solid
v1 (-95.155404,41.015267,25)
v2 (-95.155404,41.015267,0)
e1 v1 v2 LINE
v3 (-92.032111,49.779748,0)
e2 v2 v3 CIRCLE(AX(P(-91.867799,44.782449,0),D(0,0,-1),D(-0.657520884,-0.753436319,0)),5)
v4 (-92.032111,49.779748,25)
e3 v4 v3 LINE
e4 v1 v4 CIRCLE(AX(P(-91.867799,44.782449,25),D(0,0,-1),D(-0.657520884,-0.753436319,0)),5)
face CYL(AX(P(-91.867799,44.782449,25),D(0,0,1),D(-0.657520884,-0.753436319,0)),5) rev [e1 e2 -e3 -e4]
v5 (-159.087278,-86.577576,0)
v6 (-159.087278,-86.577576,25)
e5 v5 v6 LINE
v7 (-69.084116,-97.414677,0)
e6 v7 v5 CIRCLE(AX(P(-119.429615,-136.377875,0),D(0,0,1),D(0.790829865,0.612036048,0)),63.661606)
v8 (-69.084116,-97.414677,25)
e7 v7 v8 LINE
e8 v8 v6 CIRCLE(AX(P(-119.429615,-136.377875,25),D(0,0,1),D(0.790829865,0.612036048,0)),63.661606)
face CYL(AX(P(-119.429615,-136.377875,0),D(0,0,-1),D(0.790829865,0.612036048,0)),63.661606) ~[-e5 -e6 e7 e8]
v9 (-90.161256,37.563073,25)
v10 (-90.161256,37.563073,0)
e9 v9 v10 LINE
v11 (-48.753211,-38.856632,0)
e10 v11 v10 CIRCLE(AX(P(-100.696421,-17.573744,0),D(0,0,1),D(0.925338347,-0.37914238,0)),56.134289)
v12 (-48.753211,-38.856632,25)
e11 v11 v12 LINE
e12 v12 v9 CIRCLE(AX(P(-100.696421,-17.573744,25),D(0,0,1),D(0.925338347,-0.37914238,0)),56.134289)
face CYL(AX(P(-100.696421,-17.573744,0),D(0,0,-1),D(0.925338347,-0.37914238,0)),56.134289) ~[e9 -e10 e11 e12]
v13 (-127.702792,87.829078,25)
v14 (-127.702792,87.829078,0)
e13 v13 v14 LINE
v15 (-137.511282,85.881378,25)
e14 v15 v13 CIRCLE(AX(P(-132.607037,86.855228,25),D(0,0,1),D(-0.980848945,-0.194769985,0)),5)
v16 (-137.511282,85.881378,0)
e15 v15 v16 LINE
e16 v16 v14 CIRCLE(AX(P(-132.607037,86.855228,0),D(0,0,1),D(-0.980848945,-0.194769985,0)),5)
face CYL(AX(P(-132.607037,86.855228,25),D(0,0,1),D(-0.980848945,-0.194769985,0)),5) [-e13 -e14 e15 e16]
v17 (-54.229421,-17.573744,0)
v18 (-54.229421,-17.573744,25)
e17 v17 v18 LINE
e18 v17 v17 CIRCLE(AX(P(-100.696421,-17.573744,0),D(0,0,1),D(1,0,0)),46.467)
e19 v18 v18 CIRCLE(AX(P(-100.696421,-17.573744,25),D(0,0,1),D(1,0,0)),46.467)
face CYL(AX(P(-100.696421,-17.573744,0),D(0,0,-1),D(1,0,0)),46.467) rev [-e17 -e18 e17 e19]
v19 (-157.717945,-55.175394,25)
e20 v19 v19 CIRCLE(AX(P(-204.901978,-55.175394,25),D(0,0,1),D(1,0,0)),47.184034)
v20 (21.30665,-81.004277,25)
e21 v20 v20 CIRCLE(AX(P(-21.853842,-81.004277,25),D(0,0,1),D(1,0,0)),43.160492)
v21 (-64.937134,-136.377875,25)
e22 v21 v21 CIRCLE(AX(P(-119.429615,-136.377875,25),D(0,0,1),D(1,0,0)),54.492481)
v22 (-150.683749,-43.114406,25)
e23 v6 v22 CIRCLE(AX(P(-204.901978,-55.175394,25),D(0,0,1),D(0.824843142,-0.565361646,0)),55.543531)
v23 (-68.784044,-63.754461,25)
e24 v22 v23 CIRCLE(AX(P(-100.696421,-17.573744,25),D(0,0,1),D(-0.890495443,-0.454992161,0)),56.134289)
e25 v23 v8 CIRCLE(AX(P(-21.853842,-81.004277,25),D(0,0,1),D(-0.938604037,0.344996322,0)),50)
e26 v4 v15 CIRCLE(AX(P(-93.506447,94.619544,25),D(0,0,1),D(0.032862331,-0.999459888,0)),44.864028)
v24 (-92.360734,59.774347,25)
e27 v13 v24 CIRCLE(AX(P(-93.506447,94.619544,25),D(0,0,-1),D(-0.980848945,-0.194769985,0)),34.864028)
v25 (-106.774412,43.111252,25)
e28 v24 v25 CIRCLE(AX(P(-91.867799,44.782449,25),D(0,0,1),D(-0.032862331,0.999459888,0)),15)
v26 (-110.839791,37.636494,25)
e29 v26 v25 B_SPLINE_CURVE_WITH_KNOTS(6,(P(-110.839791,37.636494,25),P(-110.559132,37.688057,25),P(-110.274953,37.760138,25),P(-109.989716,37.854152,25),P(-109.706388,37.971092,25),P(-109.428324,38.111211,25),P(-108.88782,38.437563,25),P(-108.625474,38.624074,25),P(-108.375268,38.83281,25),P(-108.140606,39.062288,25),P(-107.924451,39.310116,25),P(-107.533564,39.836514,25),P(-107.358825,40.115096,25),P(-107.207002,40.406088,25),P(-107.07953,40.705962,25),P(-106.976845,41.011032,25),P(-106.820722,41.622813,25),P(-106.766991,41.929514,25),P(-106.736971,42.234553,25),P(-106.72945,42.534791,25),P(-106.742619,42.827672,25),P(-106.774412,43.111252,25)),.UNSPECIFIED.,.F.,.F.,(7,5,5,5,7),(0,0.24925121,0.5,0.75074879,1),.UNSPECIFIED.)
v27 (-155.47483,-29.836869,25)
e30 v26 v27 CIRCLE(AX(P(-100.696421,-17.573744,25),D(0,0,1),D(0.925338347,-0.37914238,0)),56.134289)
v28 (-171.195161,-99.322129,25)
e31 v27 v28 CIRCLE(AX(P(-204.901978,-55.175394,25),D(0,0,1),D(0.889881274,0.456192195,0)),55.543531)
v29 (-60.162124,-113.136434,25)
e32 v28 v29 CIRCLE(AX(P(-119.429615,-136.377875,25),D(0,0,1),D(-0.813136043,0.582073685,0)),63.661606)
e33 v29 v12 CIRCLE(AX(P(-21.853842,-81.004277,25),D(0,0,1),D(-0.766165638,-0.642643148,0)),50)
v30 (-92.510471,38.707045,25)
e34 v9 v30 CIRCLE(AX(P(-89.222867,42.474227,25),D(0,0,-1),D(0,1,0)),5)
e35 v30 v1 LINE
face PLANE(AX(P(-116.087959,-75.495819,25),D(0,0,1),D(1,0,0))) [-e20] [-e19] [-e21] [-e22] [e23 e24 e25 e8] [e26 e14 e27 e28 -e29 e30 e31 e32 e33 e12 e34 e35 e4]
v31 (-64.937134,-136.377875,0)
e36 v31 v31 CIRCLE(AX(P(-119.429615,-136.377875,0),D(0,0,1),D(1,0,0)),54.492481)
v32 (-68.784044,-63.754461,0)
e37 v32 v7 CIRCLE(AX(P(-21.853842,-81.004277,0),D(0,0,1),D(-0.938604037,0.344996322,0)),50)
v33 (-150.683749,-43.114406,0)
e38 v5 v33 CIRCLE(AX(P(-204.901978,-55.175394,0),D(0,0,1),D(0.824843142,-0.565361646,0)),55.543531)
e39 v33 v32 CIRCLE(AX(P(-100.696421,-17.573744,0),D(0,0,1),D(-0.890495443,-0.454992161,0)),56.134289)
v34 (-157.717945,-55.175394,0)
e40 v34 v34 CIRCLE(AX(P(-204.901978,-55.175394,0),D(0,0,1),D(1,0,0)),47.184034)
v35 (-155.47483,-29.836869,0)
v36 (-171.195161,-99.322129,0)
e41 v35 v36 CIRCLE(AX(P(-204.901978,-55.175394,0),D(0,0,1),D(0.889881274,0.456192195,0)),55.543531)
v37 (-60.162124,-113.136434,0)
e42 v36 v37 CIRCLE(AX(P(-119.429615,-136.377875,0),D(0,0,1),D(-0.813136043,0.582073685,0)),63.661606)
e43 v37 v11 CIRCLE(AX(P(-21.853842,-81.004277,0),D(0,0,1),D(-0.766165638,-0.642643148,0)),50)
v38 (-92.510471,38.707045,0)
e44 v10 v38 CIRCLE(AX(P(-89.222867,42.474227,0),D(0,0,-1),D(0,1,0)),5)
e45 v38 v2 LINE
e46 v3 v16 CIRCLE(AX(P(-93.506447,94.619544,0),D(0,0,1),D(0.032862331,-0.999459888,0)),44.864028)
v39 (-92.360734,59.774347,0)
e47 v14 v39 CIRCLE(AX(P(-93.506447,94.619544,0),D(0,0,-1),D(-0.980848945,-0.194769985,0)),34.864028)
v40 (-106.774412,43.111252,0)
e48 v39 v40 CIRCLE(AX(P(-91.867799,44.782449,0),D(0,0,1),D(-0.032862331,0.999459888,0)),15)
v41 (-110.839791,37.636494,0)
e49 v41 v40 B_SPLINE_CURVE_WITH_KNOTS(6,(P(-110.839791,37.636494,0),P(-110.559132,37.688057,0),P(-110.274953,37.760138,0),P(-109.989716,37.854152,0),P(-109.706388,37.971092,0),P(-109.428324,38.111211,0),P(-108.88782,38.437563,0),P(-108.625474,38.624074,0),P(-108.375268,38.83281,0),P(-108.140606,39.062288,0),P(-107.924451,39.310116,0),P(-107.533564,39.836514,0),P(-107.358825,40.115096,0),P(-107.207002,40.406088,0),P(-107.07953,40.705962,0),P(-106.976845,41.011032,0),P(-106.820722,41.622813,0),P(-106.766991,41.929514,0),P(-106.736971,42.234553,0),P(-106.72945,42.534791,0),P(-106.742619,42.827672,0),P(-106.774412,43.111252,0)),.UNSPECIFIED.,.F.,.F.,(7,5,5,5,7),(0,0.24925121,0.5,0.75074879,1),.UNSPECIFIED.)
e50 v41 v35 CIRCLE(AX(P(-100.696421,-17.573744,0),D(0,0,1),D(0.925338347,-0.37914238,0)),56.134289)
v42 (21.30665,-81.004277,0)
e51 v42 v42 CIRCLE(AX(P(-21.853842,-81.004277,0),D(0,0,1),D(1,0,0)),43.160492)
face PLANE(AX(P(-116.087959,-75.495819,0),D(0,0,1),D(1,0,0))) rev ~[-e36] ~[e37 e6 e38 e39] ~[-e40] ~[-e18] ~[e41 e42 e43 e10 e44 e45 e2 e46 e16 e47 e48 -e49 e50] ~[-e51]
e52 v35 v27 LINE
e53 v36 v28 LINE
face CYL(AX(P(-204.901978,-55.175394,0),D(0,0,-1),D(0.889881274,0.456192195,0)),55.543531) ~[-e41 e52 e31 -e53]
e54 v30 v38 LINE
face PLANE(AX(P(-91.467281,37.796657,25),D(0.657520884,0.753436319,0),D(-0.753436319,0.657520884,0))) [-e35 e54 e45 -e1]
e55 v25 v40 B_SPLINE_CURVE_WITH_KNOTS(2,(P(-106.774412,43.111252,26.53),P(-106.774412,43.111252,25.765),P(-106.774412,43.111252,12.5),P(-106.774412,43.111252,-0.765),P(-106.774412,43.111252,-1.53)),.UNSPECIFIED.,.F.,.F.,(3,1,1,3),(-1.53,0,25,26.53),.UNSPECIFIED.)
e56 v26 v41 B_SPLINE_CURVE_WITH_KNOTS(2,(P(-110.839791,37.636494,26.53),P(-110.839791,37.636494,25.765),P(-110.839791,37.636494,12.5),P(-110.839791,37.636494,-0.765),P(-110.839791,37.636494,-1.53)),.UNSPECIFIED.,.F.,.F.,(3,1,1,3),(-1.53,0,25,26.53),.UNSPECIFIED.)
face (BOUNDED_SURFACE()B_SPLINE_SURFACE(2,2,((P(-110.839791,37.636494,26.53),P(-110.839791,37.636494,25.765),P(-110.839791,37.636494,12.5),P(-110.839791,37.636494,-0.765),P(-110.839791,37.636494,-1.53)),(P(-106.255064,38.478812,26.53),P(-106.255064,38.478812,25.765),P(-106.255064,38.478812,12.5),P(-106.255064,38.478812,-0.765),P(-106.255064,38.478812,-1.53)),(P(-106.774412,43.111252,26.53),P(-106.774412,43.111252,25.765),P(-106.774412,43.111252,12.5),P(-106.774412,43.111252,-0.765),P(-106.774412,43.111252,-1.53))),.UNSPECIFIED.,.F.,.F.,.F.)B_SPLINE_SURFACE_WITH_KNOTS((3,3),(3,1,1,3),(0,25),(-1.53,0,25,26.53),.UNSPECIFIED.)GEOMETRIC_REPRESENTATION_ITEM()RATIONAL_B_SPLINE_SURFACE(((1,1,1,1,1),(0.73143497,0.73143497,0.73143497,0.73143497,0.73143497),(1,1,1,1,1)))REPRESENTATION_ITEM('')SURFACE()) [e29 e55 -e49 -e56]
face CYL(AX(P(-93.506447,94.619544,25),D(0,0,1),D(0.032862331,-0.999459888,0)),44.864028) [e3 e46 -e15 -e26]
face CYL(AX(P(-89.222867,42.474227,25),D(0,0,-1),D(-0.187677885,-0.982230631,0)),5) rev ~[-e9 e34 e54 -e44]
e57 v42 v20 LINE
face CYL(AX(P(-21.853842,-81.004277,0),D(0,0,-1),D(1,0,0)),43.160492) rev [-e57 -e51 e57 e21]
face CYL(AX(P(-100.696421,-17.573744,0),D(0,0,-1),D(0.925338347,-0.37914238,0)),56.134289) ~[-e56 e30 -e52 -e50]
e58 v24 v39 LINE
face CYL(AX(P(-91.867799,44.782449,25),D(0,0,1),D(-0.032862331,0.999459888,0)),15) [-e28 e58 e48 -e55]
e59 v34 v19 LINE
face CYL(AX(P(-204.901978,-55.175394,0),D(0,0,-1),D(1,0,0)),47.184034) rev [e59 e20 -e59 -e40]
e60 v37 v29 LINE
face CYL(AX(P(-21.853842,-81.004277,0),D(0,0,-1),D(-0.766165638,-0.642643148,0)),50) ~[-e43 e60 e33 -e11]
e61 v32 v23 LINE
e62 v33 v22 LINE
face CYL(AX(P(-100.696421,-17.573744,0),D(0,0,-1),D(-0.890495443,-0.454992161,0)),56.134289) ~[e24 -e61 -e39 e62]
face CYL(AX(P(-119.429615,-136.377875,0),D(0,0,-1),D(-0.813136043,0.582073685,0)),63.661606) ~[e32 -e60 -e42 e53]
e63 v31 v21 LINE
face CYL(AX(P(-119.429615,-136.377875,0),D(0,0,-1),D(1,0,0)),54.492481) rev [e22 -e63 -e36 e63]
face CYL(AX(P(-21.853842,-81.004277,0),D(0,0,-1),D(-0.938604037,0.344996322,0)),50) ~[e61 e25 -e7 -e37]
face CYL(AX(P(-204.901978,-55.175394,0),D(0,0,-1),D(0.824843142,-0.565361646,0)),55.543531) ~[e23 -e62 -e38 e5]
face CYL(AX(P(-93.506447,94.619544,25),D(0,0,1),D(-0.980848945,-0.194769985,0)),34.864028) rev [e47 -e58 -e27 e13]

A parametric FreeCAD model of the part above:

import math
import FreeCAD as App
import Part
import Sketcher


def edges_at(feature, points):
    """Names of the edges that pass closest to the given points."""
    edges = feature.Shape.Edges
    near = lambda p: min(range(len(edges)), key=lambda i: edges[i].distToShape(Part.Vertex(*p))[0])
    return sorted({f"Edge{near(p) + 1}" for p in points})

doc = App.newDocument("Part")
body = doc.addObject("PartDesign::Body", "Body")

sketch1 = body.newObject("Sketcher::SketchObject", "Sketch")
sketch1.AttachmentSupport = (doc.getObject("XY_Plane"), [""])
sketch1.MapMode = "FlatFace"
sketch1.addGeometry([
    Part.ArcOfCircle(Part.Circle(App.Vector(-119.429615, -136.377875, 0), App.Vector(0, 0, 1), 63.661606), math.radians(144.403473), math.radians(381.412372)),
    Part.ArcOfCircle(Part.Circle(App.Vector(-21.853842, -81.004277, 0), App.Vector(0, 0, 1), 50), math.radians(-140.010804), math.radians(122.546736)),
    Part.ArcOfCircle(Part.Circle(App.Vector(-100.696421, -17.573744, 0), App.Vector(0, 0, 1), 56.134289), math.radians(-22.28057), math.radians(192.618626)),
    Part.ArcOfCircle(Part.Circle(App.Vector(-204.901978, -55.175394, 0), App.Vector(0, 0, 1), 55.543531), math.radians(27.141668), math.radians(307.362378)),
    Part.Circle(App.Vector(-119.429615, -136.377875, 0), App.Vector(0, 0, 1), 54.492481),
    Part.Circle(App.Vector(-21.853842, -81.004277, 0), App.Vector(0, 0, 1), 43.160492),
    Part.Circle(App.Vector(-204.901978, -55.175394, 0), App.Vector(0, 0, 1), 47.184034),
    Part.ArcOfCircle(Part.Circle(App.Vector(-119.429615, -136.377875, 0), App.Vector(0, 0, 1), 63.661606), math.radians(37.736869), math.radians(128.531496)),
    Part.ArcOfCircle(Part.Circle(App.Vector(-204.901978, -55.175394, 0), App.Vector(0, 0, 1), 55.543531), math.radians(-34.427408), math.radians(12.541388)),
    Part.ArcOfCircle(Part.Circle(App.Vector(-100.696421, -17.573744, 0), App.Vector(0, 0, 1), 56.134289), math.radians(-152.93557), math.radians(-55.354266)),
    Part.ArcOfCircle(Part.Circle(App.Vector(-21.853842, -81.004277, 0), App.Vector(0, 0, 1), 50), math.radians(159.818429), math.radians(199.160045)),
    Part.Circle(App.Vector(-100.696421, -17.573744, 0), App.Vector(0, 0, 1), 46.467),
], False)
sketch1.addConstraint([
    Sketcher.Constraint("Coincident", 0, 2, 1, 1),
    Sketcher.Constraint("Coincident", 1, 2, 2, 1),
    Sketcher.Constraint("Coincident", 2, 2, 3, 1),
    Sketcher.Constraint("Coincident", 3, 2, 0, 1),
    Sketcher.Constraint("Coincident", 7, 2, 8, 1),
    Sketcher.Constraint("Coincident", 8, 2, 9, 1),
    Sketcher.Constraint("Coincident", 9, 2, 10, 1),
    Sketcher.Constraint("Coincident", 10, 2, 7, 1),
    Sketcher.Constraint("Coincident", 4, 3, 0, 3),
    Sketcher.Constraint("Coincident", 5, 3, 1, 3),
    Sketcher.Constraint("Coincident", 6, 3, 3, 3),
    Sketcher.Constraint("Coincident", 7, 3, 0, 3),
    Sketcher.Constraint("Coincident", 8, 3, 3, 3),
    Sketcher.Constraint("Coincident", 9, 3, 2, 3),
    Sketcher.Constraint("Coincident", 10, 3, 1, 3),
    Sketcher.Constraint("Coincident", 11, 3, 2, 3),
    Sketcher.Constraint("Equal", 0, 7),
    Sketcher.Constraint("Equal", 3, 8),
    Sketcher.Constraint("Equal", 2, 9),
    Sketcher.Constraint("Equal", 1, 10),
    Sketcher.Constraint("Radius", 1, 50.0),
    Sketcher.Constraint("Diameter", 11, 92.934),
    Sketcher.Constraint("Diameter", 4, 108.984961),
    Sketcher.Constraint("Radius", 2, 56.134289),
    Sketcher.Constraint("Radius", 3, 55.543531),
    Sketcher.Constraint("Diameter", 5, 86.320984),
    Sketcher.Constraint("Diameter", 6, 94.368067),
    Sketcher.Constraint("Radius", 0, 63.661606),
    Sketcher.Constraint("DistanceX", 6, 3, 7, 2, 45.814701),
    Sketcher.Constraint("DistanceX", 9, 2, 1, 3, 46.930202),
    Sketcher.Constraint("DistanceY", 10, 2, 1, 3, 16.4104),
    Sketcher.Constraint("DistanceX", 1, 3, -1, 1, 21.853842),
    Sketcher.Constraint("DistanceX", 2, 3, -1, 1, 100.696421),
    Sketcher.Constraint("DistanceX", 3, 3, -1, 1, 204.901978),
    Sketcher.Constraint("DistanceX", 2, 2, -1, 1, 155.47483),
    Sketcher.Constraint("DistanceY", 2, 2, -1, 1, 29.836869),
])
pad1 = body.newObject("PartDesign::Pad", "Pad")
pad1.Profile = sketch1
pad1.Length = 25

sketch2 = body.newObject("Sketcher::SketchObject", "Sketch001")
sketch2.AttachmentSupport = (doc.getObject("XY_Plane"), [""])
sketch2.MapMode = "FlatFace"
sketch2.AttachmentOffset = App.Placement(App.Vector(0, 0, 25), App.Rotation())
sketch2.addGeometry([
    Part.ArcOfCircle(Part.Circle(App.Vector(-93.506447, 94.619544, 0), App.Vector(0, 0, 1), 34.864028), math.radians(-88.116788), math.radians(191.231287)),
    Part.ArcOfCircle(Part.Circle(App.Vector(-91.867799, 44.782449, 0), App.Vector(0, 0, 1), 15), math.radians(91.883212), math.radians(205.346291)),
    Part.ArcOfCircle(Part.Circle(App.Vector(-100.696421, -17.573744, 0), App.Vector(0, 0, 1), 56.134289), math.radians(80.536933), math.radians(94.830972)),
    Part.LineSegment(App.Vector(-91.467281, 37.796657, 0), App.Vector(-95.155404, 41.015267, 0)),
    Part.ArcOfCircle(Part.Circle(App.Vector(-91.867799, 44.782449, 0), App.Vector(0, 0, 1), 5), math.radians(91.883212), math.radians(228.888926)),
    Part.ArcOfCircle(Part.Circle(App.Vector(-93.506447, 94.619544, 0), App.Vector(0, 0, 1), 44.864028), math.radians(-88.116788), math.radians(191.231287)),
    Part.ArcOfCircle(Part.Circle(App.Vector(-132.607037, 86.855228, 0), App.Vector(0, 0, 1), 5), math.radians(-168.768713), math.radians(11.231287)),
], False)
sketch2.addConstraint([
    Sketcher.Constraint("Coincident", 0, 1, 1, 1),
    Sketcher.Constraint("Coincident", 1, 2, 2, 2),
    Sketcher.Constraint("Coincident", 2, 1, 3, 1),
    Sketcher.Constraint("Coincident", 3, 2, 4, 2),
    Sketcher.Constraint("Coincident", 4, 1, 5, 1),
    Sketcher.Constraint("Coincident", 5, 2, 6, 1),
    Sketcher.Constraint("Coincident", 6, 2, 0, 2),
    Sketcher.Constraint("Coincident", 4, 3, 1, 3),
    Sketcher.Constraint("Coincident", 5, 3, 0, 3),
    Sketcher.Constraint("Radius", 1, 15.0),
    Sketcher.Constraint("Radius", 4, 5.0),
    Sketcher.Constraint("Radius", 0, 34.864028),
    Sketcher.Constraint("Radius", 2, 56.134289),
    Sketcher.Constraint("DistanceX", 1, 3, -1, 1, 91.867799),
    Sketcher.Constraint("DistanceY", 1, 3, 0, 1, 14.991898),
    Sketcher.Constraint("DistanceY", 2, 3, 2, 1, 55.370401),
    Sketcher.Constraint("DistanceY", 1, 3, 4, 1, 4.997299),
    Sketcher.Constraint("DistanceY", 5, 2, 6, 2, 1.9477),
    Sketcher.Constraint("Distance", 3, 4.895069),
    Sketcher.Constraint("DistanceY", -1, 1, 1, 3, 44.782449),
    Sketcher.Constraint("DistanceX", 2, 3, -1, 1, 100.696421),
    Sketcher.Constraint("DistanceY", -1, 1, 6, 3, 86.855228),
    Sketcher.Constraint("DistanceX", 5, 2, -1, 1, 137.511282),
    Sketcher.Constraint("DistanceY", -1, 1, 5, 2, 85.881378),
    Sketcher.Constraint("DistanceY", 2, 3, 0, 3, 112.193289),
])
pad2 = body.newObject("PartDesign::Pad", "Pad001")
pad2.Profile = sketch2
pad2.Length = 25
pad2.Reversed = True
doc.recompute()

fillet = body.newObject("PartDesign::Fillet", "Fillet")
fillet.Base = (pad2, edges_at(pad2, [(-105.424, 38.361, 12.5), (-91.467, 37.797, 12.5)]))
fillet.Radius = 5

doc.recompute()
